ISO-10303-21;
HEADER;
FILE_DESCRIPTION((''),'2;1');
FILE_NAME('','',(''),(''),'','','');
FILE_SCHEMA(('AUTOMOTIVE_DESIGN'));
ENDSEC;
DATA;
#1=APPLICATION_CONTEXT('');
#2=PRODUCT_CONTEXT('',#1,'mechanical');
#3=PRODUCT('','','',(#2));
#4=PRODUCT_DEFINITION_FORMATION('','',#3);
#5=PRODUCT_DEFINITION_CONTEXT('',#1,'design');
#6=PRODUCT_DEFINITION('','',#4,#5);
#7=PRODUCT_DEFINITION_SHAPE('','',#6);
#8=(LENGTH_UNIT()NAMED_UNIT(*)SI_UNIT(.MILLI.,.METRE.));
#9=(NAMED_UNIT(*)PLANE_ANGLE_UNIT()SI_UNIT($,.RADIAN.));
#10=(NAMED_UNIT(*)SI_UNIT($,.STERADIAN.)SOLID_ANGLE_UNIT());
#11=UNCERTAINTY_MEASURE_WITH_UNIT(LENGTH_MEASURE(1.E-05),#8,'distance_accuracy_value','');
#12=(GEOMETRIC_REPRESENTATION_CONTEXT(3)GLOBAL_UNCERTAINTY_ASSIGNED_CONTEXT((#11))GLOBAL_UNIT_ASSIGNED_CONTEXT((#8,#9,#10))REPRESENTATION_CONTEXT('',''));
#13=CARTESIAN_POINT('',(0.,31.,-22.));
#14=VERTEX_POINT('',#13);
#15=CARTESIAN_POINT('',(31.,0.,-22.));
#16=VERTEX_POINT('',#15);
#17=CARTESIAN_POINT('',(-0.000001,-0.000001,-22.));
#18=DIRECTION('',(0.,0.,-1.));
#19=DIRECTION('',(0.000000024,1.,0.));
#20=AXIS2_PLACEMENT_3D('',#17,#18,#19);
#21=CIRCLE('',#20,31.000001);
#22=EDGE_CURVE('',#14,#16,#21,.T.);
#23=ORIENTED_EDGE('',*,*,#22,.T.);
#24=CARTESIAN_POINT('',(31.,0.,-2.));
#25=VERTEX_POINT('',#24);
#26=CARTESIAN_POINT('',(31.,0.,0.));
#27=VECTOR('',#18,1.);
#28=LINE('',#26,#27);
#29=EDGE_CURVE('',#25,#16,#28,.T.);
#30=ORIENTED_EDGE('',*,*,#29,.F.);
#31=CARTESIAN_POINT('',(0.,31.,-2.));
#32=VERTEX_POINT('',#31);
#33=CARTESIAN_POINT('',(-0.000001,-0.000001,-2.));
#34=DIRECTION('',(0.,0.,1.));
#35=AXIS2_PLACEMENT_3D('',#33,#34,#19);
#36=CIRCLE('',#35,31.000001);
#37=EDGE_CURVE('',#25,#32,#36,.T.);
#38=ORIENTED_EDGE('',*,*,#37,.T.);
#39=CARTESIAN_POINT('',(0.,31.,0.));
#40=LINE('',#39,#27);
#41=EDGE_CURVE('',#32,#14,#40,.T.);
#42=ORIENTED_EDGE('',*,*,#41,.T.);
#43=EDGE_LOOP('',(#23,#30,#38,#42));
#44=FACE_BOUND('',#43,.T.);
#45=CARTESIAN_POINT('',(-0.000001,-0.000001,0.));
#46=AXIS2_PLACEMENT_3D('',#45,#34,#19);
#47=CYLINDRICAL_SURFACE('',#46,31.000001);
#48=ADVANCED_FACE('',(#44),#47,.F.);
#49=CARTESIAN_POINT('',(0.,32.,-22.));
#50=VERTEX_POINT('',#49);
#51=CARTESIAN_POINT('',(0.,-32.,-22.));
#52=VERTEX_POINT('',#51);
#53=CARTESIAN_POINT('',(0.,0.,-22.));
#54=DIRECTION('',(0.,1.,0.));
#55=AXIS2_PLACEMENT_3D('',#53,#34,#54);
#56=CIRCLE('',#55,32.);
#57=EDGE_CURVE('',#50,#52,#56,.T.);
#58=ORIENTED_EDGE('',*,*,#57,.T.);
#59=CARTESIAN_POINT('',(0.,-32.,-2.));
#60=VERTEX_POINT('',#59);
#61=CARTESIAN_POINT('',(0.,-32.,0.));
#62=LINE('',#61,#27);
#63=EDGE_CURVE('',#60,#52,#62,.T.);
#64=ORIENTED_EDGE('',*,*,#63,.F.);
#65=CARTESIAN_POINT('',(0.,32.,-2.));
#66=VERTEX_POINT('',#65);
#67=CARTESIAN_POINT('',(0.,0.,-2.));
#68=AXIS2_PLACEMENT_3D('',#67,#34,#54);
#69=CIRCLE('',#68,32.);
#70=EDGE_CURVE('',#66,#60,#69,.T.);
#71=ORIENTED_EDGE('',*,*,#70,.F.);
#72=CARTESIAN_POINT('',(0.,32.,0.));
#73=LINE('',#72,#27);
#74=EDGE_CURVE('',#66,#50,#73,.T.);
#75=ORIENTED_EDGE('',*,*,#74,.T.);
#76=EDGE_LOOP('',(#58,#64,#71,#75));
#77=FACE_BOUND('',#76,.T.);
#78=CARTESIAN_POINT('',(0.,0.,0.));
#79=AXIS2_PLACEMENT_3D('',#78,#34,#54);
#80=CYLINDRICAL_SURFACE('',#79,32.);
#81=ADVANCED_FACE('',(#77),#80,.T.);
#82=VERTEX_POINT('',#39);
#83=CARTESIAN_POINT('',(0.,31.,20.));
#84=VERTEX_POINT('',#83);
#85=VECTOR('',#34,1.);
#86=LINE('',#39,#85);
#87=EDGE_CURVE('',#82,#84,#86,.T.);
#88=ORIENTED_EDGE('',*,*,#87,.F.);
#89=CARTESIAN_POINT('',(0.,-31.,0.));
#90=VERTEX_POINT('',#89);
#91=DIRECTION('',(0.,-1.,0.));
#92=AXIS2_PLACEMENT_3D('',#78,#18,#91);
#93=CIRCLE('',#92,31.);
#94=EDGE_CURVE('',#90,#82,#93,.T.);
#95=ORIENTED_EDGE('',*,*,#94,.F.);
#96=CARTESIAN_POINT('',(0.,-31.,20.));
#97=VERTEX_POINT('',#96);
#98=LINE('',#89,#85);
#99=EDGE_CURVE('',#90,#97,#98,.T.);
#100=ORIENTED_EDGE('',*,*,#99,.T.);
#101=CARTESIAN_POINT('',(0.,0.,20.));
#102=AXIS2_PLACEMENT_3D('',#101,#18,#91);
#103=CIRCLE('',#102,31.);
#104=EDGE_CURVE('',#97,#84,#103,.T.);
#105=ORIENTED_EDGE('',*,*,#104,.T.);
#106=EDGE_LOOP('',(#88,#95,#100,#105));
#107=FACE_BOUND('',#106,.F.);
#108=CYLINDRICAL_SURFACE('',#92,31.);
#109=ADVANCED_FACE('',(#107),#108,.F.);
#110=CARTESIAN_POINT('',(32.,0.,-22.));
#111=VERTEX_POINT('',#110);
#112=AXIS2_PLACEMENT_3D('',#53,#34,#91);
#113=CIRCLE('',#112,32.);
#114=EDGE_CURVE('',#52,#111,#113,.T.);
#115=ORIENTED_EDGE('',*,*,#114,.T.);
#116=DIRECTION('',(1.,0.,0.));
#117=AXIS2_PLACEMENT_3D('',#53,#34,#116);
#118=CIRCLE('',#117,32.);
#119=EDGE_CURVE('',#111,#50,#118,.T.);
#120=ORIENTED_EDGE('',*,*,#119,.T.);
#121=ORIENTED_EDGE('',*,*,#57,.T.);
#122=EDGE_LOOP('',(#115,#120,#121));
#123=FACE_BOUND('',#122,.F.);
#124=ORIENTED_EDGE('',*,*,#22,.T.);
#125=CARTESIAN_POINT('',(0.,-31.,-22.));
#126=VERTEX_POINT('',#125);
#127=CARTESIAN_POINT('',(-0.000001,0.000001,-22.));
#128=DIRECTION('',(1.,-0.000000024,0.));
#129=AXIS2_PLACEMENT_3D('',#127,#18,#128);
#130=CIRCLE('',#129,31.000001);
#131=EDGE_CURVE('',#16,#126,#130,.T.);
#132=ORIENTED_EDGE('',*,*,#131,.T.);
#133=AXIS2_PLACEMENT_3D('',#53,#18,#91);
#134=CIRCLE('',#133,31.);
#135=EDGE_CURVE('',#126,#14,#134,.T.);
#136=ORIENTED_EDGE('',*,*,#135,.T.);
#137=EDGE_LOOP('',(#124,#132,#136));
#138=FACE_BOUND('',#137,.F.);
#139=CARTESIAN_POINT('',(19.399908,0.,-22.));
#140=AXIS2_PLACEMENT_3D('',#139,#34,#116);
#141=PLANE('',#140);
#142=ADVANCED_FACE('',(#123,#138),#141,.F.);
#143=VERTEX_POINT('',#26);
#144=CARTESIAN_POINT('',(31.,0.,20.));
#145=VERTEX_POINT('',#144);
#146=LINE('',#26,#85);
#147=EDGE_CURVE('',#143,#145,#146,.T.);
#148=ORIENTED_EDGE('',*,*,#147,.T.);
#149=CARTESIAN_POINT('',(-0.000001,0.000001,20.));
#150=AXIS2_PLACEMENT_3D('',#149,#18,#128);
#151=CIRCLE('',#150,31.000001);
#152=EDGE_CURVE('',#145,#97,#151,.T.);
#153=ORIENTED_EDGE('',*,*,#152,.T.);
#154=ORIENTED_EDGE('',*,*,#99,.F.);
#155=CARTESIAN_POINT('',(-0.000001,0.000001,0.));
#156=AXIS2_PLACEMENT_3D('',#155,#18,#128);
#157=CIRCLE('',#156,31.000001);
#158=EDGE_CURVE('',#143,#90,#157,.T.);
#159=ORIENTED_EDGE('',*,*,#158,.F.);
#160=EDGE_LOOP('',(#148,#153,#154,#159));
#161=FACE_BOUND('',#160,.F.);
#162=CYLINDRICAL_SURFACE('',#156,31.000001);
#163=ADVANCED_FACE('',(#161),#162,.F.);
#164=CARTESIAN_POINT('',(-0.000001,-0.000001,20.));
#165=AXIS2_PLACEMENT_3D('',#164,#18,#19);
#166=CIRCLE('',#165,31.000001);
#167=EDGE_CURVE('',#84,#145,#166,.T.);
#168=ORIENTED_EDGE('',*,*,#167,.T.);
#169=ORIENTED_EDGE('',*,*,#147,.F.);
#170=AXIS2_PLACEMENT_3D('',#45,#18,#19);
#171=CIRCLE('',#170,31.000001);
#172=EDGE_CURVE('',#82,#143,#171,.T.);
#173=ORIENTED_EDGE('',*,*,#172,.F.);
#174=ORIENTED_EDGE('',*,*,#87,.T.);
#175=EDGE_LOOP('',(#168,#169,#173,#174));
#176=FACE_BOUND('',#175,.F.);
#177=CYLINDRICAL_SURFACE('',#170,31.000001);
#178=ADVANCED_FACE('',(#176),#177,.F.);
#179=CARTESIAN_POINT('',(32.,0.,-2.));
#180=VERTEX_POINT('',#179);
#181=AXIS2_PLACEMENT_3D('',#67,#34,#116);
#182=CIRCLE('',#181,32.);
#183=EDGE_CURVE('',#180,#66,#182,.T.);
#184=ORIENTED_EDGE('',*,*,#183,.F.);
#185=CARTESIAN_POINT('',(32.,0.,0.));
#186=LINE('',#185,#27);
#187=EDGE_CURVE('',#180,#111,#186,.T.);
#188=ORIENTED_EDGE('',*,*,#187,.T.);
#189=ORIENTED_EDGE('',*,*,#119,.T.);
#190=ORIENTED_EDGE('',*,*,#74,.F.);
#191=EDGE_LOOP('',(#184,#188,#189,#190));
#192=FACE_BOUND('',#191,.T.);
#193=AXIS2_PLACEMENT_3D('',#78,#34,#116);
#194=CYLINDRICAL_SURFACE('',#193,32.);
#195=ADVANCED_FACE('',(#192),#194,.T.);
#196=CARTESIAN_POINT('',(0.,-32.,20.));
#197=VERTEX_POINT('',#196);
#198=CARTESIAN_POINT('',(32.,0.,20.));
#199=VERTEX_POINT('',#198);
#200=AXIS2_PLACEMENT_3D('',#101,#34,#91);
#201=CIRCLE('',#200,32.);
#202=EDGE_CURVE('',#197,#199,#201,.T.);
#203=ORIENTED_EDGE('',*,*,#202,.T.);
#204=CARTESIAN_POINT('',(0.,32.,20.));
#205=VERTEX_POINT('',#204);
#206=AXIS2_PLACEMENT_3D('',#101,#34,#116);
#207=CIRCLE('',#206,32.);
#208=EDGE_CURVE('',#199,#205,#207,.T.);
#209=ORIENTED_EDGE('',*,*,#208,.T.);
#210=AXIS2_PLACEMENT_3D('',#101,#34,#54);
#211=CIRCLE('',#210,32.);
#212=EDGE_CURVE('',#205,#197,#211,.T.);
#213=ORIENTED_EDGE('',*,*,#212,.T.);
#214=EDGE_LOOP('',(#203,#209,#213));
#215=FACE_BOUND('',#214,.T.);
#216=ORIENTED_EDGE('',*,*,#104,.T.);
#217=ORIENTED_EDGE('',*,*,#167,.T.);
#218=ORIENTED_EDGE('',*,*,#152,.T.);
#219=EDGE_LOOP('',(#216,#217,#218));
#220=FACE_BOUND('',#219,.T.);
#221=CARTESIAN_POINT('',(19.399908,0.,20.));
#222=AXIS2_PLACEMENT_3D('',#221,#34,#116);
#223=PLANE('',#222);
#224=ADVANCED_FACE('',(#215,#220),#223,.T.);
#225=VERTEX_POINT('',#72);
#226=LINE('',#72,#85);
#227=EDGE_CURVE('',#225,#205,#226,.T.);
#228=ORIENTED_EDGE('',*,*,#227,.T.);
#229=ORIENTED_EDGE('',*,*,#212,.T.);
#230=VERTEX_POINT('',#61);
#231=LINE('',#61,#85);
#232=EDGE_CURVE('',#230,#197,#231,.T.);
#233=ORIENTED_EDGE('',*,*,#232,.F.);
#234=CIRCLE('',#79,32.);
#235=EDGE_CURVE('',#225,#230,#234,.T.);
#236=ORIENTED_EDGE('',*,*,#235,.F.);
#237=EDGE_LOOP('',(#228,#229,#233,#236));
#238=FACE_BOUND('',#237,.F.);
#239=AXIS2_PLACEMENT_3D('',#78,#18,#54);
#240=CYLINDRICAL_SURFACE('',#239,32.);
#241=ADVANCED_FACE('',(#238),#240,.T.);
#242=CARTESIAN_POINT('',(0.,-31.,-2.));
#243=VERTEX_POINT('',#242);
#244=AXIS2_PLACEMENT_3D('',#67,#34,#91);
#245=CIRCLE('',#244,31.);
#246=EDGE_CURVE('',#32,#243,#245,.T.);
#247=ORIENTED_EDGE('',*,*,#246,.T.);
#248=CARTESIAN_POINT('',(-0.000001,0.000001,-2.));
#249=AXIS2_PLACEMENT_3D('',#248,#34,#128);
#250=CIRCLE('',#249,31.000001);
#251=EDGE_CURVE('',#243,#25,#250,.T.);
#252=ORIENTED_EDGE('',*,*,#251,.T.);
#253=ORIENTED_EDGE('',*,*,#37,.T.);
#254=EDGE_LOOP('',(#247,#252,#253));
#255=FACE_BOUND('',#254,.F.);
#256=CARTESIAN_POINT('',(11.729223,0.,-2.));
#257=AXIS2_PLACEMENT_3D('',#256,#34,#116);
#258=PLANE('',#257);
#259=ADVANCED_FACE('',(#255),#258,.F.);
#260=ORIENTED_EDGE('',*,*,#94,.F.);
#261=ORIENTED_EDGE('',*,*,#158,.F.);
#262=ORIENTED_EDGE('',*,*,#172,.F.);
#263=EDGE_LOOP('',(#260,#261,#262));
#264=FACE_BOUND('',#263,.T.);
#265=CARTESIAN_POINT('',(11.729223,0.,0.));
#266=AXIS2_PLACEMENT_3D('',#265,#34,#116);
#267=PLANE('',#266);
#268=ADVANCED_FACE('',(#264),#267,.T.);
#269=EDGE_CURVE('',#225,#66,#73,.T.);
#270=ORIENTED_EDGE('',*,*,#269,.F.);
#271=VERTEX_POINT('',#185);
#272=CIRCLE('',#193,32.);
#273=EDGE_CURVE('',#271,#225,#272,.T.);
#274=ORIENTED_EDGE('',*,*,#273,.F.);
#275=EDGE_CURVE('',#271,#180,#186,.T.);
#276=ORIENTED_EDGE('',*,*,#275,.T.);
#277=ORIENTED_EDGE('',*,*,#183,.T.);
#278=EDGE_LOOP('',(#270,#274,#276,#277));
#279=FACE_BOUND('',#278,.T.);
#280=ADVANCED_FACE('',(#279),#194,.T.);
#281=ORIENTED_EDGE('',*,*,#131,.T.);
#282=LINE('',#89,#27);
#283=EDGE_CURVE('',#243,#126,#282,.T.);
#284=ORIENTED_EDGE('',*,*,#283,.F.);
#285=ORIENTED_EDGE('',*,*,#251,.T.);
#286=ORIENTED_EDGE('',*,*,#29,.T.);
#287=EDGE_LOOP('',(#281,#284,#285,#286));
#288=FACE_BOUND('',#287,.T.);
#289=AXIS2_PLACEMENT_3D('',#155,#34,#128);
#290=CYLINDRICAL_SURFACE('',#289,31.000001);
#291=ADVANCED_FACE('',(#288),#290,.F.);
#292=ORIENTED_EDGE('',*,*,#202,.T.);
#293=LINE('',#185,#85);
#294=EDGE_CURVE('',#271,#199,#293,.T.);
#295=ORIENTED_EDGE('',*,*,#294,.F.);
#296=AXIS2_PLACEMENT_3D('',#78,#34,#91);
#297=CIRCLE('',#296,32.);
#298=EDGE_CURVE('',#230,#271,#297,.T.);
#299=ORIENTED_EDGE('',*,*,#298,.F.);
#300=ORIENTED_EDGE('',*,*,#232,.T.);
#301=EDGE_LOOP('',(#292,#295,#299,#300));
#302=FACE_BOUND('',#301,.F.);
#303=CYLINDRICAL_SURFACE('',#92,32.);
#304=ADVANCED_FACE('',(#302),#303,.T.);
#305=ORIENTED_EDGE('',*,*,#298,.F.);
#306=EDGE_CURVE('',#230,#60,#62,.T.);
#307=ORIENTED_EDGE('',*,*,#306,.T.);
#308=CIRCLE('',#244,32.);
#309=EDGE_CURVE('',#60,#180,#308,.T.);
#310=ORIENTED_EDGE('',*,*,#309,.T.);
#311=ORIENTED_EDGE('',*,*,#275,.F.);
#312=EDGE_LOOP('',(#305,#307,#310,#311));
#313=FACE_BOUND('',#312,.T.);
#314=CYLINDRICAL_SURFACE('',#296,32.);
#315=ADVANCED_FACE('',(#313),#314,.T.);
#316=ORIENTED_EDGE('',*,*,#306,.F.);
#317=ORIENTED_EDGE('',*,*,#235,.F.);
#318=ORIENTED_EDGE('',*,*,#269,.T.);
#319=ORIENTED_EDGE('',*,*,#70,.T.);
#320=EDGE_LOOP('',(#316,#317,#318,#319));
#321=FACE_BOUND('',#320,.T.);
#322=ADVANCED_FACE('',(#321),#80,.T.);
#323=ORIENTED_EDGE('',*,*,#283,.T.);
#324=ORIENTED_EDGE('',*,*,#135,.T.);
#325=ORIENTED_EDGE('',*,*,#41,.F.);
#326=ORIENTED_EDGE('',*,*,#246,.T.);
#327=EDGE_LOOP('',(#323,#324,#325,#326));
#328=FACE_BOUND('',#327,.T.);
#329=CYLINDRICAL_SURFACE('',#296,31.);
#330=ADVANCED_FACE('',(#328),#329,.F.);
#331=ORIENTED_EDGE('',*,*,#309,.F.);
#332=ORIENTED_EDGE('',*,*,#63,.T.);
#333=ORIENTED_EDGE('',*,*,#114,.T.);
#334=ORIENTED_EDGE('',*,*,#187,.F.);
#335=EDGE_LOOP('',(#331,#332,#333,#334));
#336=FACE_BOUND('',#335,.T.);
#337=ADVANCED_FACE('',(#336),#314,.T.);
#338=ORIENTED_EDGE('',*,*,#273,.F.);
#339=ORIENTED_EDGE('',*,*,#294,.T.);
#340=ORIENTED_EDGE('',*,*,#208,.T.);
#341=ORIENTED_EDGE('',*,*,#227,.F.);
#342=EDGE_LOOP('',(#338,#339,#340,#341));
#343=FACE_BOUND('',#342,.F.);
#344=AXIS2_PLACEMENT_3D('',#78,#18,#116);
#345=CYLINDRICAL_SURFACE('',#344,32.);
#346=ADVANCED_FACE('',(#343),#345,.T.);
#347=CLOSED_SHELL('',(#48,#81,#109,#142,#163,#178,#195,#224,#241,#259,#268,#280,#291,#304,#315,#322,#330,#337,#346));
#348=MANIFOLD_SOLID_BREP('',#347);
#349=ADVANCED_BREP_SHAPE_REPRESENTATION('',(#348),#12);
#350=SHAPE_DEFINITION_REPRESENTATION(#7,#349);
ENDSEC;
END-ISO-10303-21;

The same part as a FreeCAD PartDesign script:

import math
import FreeCAD as App
import Part
import Sketcher

V = App.Vector

doc = App.newDocument("Part")
body = doc.addObject("PartDesign::Body", "Body")

# Sketch on XY plane
sketch1 = doc.addObject("Sketcher::SketchObject", "Sketch")
body.addObject(sketch1)
sketch1.AttachmentSupport = (doc.XY_Plane, [""])
sketch1.MapMode = "FlatFace"
sketch1.addGeometry([
    Part.ArcOfCircle(Part.Circle(V(0, 0, 0), V(0, 0, 1), 32), math.radians(-90), math.radians(0)),  # 0
    Part.ArcOfCircle(Part.Circle(V(0, 0, 0), V(0, 0, 1), 32), math.radians(0), math.radians(90)),  # 1
    Part.ArcOfCircle(Part.Circle(V(0, 0, 0), V(0, 0, 1), 32), math.radians(90), math.radians(270)),  # 2
    Part.ArcOfCircle(Part.Circle(V(0, 0, 0), V(0, 0, 1), 31), math.radians(0), math.radians(90)),  # 3
    Part.ArcOfCircle(Part.Circle(V(0, 0, 0), V(0, 0, 1), 31), math.radians(-90), math.radians(0)),  # 4
    Part.ArcOfCircle(Part.Circle(V(0, 0, 0), V(0, 0, 1), 31), math.radians(90), math.radians(270)),  # 5
], False)
sketch1.addConstraint([
    Sketcher.Constraint("Tangent", 0, 2, 1, 1),
    Sketcher.Constraint("Tangent", 1, 2, 2, 1),
    Sketcher.Constraint("Tangent", 2, 2, 0, 1),
    Sketcher.Constraint("Tangent", 3, 1, 4, 2),
    Sketcher.Constraint("Tangent", 4, 1, 5, 2),
    Sketcher.Constraint("Tangent", 5, 1, 3, 2),
    Sketcher.Constraint("Coincident", 0, 3, -1, 1),
    Sketcher.Constraint("Coincident", 3, 3, -1, 1),
    Sketcher.Constraint("PointOnObject", 0, 2, -1),
    Sketcher.Constraint("PointOnObject", 1, 2, -2),
    Sketcher.Constraint("PointOnObject", 2, 2, -2),
    Sketcher.Constraint("PointOnObject", 3, 1, -1),
    Sketcher.Constraint("PointOnObject", 4, 1, -2),
    Sketcher.Constraint("PointOnObject", 5, 1, -2),
    Sketcher.Constraint("Radius", 0, 32.0),
    Sketcher.Constraint("Radius", 3, 31.000001),
])
pad1 = doc.addObject("PartDesign::Pad", "Pad")
body.addObject(pad1)
pad1.Profile = sketch1
pad1.Length = 20

# Sketch on XY plane
sketch2 = doc.addObject("Sketcher::SketchObject", "Sketch001")
body.addObject(sketch2)
sketch2.AttachmentSupport = (doc.XY_Plane, [""])
sketch2.MapMode = "FlatFace"
sketch2.addGeometry([
    Part.ArcOfCircle(Part.Circle(V(0, 0, 0), V(0, 0, 1), 32), math.radians(-90), math.radians(0)),  # 0
    Part.ArcOfCircle(Part.Circle(V(0, 0, 0), V(0, 0, 1), 32), math.radians(0), math.radians(90)),  # 1
    Part.ArcOfCircle(Part.Circle(V(0, 0, 0), V(0, 0, 1), 32), math.radians(90), math.radians(270)),  # 2
    Part.ArcOfCircle(Part.Circle(V(0, 0, 0), V(0, 0, 1), 31), math.radians(0), math.radians(90)),  # 3
    Part.ArcOfCircle(Part.Circle(V(0, 0, 0), V(0, 0, 1), 31), math.radians(-90), math.radians(0)),  # 4
    Part.ArcOfCircle(Part.Circle(V(0, 0, 0), V(0, 0, 1), 31), math.radians(90), math.radians(270)),  # 5
], False)
sketch2.addConstraint([
    Sketcher.Constraint("Tangent", 0, 2, 1, 1),
    Sketcher.Constraint("Tangent", 1, 2, 2, 1),
    Sketcher.Constraint("Tangent", 2, 2, 0, 1),
    Sketcher.Constraint("Tangent", 3, 1, 4, 2),
    Sketcher.Constraint("Tangent", 4, 1, 5, 2),
    Sketcher.Constraint("Tangent", 5, 1, 3, 2),
    Sketcher.Constraint("Coincident", 0, 3, -1, 1),
    Sketcher.Constraint("Coincident", 3, 3, -1, 1),
    Sketcher.Constraint("PointOnObject", 0, 2, -1),
    Sketcher.Constraint("PointOnObject", 1, 2, -2),
    Sketcher.Constraint("PointOnObject", 2, 2, -2),
    Sketcher.Constraint("PointOnObject", 3, 1, -1),
    Sketcher.Constraint("PointOnObject", 4, 1, -2),
    Sketcher.Constraint("PointOnObject", 5, 1, -2),
    Sketcher.Constraint("Radius", 0, 32.0),
    Sketcher.Constraint("Radius", 3, 31.000001),
])
pad2 = doc.addObject("PartDesign::Pad", "Pad001")
body.addObject(pad2)
pad2.Profile = sketch2
pad2.Length = 22
pad2.Reversed = True

# Sketch on XY plane
sketch3 = doc.addObject("Sketcher::SketchObject", "Sketch002")
body.addObject(sketch3)
sketch3.AttachmentSupport = (doc.XY_Plane, [""])
sketch3.MapMode = "FlatFace"
sketch3.addGeometry([
    Part.ArcOfCircle(Part.Circle(V(0, 0, 0), V(0, 0, 1), 32), math.radians(90), math.radians(270)),
    Part.ArcOfCircle(Part.Circle(V(0, 0, 0), V(0, 0, 1), 32), math.radians(-90), math.radians(0)),
    Part.ArcOfCircle(Part.Circle(V(0, 0, 0), V(0, 0, 1), 32), math.radians(0), math.radians(90)),
], False)
sketch3.addConstraint([
    Sketcher.Constraint("Tangent", 0, 2, 1, 1),
    Sketcher.Constraint("Tangent", 1, 2, 2, 1),
    Sketcher.Constraint("Tangent", 2, 2, 0, 1),
    Sketcher.Constraint("Coincident", 0, 3, -1, 1),
    Sketcher.Constraint("PointOnObject", 0, 2, -2),
    Sketcher.Constraint("PointOnObject", 1, 2, -1),
    Sketcher.Constraint("PointOnObject", 2, 2, -2),
    Sketcher.Constraint("Radius", 0, 32.0),
])
pad3 = doc.addObject("PartDesign::Pad", "Pad002")
body.addObject(pad3)
pad3.Profile = sketch3
pad3.Length = 2
pad3.Reversed = True

doc.recompute()
